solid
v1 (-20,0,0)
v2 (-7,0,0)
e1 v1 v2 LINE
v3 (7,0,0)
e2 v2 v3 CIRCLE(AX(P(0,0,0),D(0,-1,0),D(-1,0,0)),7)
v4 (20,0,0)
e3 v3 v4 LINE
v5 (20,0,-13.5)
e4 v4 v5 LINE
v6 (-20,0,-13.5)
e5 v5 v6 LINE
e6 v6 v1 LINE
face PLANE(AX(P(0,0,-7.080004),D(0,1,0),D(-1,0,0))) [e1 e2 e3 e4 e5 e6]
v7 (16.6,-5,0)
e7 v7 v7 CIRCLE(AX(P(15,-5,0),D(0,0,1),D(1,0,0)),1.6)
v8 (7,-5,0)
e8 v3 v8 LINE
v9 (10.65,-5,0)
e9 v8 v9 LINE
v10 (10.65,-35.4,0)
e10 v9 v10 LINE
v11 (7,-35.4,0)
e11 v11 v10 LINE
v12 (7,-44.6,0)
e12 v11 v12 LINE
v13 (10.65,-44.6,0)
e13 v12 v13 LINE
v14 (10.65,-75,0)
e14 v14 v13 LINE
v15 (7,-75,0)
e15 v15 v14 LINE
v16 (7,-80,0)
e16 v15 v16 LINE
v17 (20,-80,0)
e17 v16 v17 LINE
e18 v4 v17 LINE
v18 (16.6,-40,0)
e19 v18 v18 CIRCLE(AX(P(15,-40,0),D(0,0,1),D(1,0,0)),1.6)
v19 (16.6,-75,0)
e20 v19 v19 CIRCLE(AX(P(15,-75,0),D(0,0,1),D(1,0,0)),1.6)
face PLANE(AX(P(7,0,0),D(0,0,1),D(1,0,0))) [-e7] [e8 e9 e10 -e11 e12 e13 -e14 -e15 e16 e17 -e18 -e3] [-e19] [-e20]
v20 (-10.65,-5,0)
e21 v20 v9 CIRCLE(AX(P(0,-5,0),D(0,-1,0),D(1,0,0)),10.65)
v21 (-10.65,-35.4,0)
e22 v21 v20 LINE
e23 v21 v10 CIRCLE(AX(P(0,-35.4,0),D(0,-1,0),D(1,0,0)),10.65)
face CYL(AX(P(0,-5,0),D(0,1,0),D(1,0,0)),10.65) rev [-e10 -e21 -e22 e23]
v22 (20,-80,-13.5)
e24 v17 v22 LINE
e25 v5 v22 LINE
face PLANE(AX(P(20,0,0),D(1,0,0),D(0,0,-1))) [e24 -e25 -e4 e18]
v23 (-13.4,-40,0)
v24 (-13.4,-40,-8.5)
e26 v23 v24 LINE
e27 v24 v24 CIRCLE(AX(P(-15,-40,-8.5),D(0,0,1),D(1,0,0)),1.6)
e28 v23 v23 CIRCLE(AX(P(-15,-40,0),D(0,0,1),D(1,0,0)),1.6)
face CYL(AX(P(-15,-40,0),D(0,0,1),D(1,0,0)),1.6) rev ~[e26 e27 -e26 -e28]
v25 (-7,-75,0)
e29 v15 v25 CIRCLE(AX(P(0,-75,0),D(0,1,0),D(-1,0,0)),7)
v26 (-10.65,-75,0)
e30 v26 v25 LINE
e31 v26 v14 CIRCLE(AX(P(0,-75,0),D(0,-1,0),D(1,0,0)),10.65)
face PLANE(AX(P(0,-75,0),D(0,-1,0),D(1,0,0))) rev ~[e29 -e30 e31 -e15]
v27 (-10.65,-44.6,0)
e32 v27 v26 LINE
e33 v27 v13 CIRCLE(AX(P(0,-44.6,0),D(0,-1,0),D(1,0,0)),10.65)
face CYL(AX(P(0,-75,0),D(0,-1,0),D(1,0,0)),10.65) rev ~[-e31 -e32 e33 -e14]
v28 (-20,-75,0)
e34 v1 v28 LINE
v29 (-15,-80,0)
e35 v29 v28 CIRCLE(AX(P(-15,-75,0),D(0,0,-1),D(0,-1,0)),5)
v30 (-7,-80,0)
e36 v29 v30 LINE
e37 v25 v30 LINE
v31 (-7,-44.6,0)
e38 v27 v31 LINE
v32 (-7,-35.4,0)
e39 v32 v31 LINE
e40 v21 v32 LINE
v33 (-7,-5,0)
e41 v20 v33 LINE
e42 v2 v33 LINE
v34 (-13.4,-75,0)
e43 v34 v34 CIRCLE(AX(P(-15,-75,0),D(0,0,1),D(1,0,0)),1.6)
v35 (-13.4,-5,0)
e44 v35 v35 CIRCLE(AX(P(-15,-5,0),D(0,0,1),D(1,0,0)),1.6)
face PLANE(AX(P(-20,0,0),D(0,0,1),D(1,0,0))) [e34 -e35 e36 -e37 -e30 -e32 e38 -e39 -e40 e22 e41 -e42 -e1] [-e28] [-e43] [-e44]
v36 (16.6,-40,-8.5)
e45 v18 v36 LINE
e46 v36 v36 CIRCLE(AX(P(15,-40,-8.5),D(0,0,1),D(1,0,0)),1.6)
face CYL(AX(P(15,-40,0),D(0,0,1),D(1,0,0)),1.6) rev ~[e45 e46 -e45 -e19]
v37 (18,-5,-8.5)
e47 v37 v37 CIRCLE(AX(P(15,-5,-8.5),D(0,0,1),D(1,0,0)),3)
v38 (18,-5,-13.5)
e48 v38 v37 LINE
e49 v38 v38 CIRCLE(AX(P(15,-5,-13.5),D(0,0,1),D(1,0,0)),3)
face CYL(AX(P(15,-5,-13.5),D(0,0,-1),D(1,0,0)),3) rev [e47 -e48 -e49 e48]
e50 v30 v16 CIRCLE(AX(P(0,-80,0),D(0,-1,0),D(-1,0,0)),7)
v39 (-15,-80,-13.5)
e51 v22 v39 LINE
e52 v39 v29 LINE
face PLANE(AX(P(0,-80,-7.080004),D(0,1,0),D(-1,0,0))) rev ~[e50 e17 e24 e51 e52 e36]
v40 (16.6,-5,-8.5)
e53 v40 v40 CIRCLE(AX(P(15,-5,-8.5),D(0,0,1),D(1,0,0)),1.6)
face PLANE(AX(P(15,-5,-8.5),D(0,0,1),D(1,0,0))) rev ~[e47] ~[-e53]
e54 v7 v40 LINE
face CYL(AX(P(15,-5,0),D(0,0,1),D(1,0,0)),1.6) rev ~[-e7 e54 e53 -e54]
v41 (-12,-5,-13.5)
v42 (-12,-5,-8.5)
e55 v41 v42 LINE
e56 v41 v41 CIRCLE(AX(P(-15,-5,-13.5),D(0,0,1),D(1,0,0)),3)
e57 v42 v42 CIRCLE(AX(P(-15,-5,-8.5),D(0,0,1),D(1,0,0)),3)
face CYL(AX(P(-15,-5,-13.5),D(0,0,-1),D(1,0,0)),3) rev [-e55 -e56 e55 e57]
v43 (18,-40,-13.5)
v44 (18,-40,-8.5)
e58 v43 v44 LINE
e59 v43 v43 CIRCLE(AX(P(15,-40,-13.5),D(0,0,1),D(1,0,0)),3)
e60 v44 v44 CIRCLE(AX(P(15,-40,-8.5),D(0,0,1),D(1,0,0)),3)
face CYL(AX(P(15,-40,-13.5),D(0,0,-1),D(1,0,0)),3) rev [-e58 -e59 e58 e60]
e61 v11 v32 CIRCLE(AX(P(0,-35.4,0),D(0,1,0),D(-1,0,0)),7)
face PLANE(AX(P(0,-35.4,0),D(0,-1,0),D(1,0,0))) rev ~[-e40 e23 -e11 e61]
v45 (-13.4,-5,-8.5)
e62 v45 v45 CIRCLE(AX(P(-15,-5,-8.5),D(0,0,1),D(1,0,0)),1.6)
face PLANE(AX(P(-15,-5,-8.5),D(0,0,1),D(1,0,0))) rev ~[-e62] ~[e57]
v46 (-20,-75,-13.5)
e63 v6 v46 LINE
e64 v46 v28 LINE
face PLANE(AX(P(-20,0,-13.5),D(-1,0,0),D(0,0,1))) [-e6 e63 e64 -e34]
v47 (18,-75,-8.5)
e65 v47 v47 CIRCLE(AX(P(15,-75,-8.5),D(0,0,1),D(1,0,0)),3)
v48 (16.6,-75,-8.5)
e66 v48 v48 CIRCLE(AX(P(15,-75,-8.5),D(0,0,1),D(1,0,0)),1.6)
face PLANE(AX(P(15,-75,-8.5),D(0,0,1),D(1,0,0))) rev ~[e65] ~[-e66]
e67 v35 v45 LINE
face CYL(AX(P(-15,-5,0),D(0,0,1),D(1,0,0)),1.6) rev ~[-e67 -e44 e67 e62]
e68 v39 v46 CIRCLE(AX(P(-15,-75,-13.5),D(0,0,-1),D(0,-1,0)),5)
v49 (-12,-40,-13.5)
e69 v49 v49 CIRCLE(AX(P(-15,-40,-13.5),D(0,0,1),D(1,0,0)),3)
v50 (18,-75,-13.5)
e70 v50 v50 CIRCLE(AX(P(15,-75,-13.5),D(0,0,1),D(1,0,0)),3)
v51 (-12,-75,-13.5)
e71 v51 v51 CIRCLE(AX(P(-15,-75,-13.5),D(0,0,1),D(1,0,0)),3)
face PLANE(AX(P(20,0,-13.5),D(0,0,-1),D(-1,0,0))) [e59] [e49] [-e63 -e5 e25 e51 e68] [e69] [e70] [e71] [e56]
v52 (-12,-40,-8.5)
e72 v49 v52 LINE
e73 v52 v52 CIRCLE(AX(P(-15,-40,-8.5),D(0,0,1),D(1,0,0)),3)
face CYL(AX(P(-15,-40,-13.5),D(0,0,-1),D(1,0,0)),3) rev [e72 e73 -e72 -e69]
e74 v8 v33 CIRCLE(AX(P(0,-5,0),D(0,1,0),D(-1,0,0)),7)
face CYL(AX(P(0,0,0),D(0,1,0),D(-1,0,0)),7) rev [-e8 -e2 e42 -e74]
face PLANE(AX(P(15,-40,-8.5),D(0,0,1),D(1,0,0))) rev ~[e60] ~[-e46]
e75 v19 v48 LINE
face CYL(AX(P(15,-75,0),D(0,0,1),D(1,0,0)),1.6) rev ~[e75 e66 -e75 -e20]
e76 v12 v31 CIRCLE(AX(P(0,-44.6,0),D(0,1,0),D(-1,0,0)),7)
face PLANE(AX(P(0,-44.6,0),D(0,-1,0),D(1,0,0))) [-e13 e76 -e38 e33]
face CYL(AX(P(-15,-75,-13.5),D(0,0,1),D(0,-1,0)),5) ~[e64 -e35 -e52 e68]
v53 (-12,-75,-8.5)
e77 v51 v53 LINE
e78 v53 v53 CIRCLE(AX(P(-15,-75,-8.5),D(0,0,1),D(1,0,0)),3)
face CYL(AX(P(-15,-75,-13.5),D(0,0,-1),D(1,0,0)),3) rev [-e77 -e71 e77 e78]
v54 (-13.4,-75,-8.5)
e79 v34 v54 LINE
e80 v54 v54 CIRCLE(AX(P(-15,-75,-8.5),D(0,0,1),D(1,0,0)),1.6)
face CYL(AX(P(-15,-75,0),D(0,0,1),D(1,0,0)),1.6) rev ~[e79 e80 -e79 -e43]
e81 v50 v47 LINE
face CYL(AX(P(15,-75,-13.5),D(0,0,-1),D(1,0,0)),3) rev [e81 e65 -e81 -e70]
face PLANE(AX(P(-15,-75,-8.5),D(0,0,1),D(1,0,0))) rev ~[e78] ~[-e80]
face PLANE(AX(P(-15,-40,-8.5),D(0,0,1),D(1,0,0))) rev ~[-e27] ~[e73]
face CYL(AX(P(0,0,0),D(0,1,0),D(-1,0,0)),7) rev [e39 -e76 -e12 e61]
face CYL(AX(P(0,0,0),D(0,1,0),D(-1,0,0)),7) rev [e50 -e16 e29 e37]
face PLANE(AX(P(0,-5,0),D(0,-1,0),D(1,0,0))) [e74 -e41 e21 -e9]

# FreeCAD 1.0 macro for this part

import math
import FreeCAD as App
import Part
import Sketcher
Q = App.Units.Quantity


def edges_at(feature, points):
    """Names of the edges that pass closest to the given points."""
    edges = feature.Shape.Edges
    near = lambda p: min(range(len(edges)), key=lambda i: edges[i].distToShape(Part.Vertex(*p))[0])
    return sorted({f"Edge{near(p) + 1}" for p in points})

doc = App.newDocument("Part")
body = doc.addObject("PartDesign::Body", "Body")

sketch1 = body.newObject("Sketcher::SketchObject", "Sketch")
sketch1.AttachmentSupport = (doc.getObject("XZ_Plane"), [""])
sketch1.MapMode = "FlatFace"
sketch1.addGeometry(Part.LineSegment(App.Vector(20, -13.5, 0), App.Vector(20, 0, 0)), False)
sketch1.addGeometry(Part.LineSegment(App.Vector(20, 0, 0), App.Vector(7, 0, 0)), False)
sketch1.addGeometry(Part.ArcOfCircle(Part.Circle(App.Vector(0, 0, 0), App.Vector(0, 0, 1), 7), math.radians(180), math.radians(360)), False)
sketch1.addGeometry(Part.LineSegment(App.Vector(-7, 0, 0), App.Vector(-20, 0, 0)), False)
sketch1.addGeometry(Part.LineSegment(App.Vector(-20, 0, 0), App.Vector(-20, -13.5, 0)), False)
sketch1.addGeometry(Part.LineSegment(App.Vector(-20, -13.5, 0), App.Vector(20, -13.5, 0)), False)
sketch1.addConstraint(Sketcher.Constraint("Coincident", 0, 2, 1, 1))
sketch1.addConstraint(Sketcher.Constraint("Coincident", 1, 2, 2, 2))
sketch1.addConstraint(Sketcher.Constraint("Coincident", 2, 1, 3, 1))
sketch1.addConstraint(Sketcher.Constraint("Coincident", 3, 2, 4, 1))
sketch1.addConstraint(Sketcher.Constraint("Coincident", 4, 2, 5, 1))
sketch1.addConstraint(Sketcher.Constraint("Coincident", 5, 2, 0, 1))
sketch1.addConstraint(Sketcher.Constraint("Vertical", 0))
sketch1.addConstraint(Sketcher.Constraint("Horizontal", 1))
sketch1.addConstraint(Sketcher.Constraint("Horizontal", 3))
sketch1.addConstraint(Sketcher.Constraint("Vertical", 4))
sketch1.addConstraint(Sketcher.Constraint("Horizontal", 5))
sketch1.addConstraint(Sketcher.Constraint("Coincident", 2, 3, -1, 1))
sketch1.addConstraint(Sketcher.Constraint("Symmetric", 0, 2, 3, 2, -1, 1))
sketch1.addConstraint(Sketcher.Constraint("PointOnObject", 0, 2, -1))
sketch1.addConstraint(Sketcher.Constraint("Radius", 2, Q("7 mm")))
sketch1.addConstraint(Sketcher.Constraint("DistanceX", 1, 2, 1, 1, Q("13 mm")))
sketch1.addConstraint(Sketcher.Constraint("DistanceY", 0, 1, 0, 2, Q("13.5 mm")))
pad1 = body.newObject("PartDesign::Pad", "Pad")
pad1.Profile = sketch1
pad1.Length = 80

sketch2 = body.newObject("Sketcher::SketchObject", "Sketch001")
sketch2.AttachmentSupport = (doc.getObject("XY_Plane"), [""])
sketch2.MapMode = "FlatFace"
sketch2.addGeometry(Part.Circle(App.Vector(-15, -5, 0), App.Vector(0, 0, 1), 1.6), False)
sketch2.addGeometry(Part.Circle(App.Vector(-15, -40, 0), App.Vector(0, 0, 1), 1.6), False)
sketch2.addGeometry(Part.Circle(App.Vector(-15, -75, 0), App.Vector(0, 0, 1), 1.6), False)
sketch2.addGeometry(Part.Circle(App.Vector(15, -5, 0), App.Vector(0, 0, 1), 1.6), False)
sketch2.addGeometry(Part.Circle(App.Vector(15, -40, 0), App.Vector(0, 0, 1), 1.6), False)
sketch2.addGeometry(Part.Circle(App.Vector(15, -75, 0), App.Vector(0, 0, 1), 1.6), False)
sketch2.addConstraint(Sketcher.Constraint("Equal", 0, 1))
sketch2.addConstraint(Sketcher.Constraint("Equal", 1, 2))
sketch2.addConstraint(Sketcher.Constraint("Equal", 2, 3))
sketch2.addConstraint(Sketcher.Constraint("Equal", 3, 4))
sketch2.addConstraint(Sketcher.Constraint("Equal", 4, 5))
sketch2.addConstraint(Sketcher.Constraint("Symmetric", 0, 3, 3, 3, -2))
sketch2.addConstraint(Sketcher.Constraint("Symmetric", 1, 3, 4, 3, -2))
sketch2.addConstraint(Sketcher.Constraint("Symmetric", 2, 3, 5, 3, -2))
sketch2.addConstraint(Sketcher.Constraint("Vertical", 0, 3, 1, 3))
sketch2.addConstraint(Sketcher.Constraint("Vertical", 1, 3, 2, 3))
sketch2.addConstraint(Sketcher.Constraint("Diameter", 0, Q("3.2 mm")))
sketch2.addConstraint(Sketcher.Constraint("DistanceX", 0, 3, -1, 1, Q("15 mm")))
sketch2.addConstraint(Sketcher.Constraint("DistanceY", 0, 3, -1, 1, Q("5 mm")))
sketch2.addConstraint(Sketcher.Constraint("DistanceY", 1, 3, -1, 1, Q("40 mm")))
sketch2.addConstraint(Sketcher.Constraint("DistanceY", 2, 3, -1, 1, Q("75 mm")))
pocket1 = body.newObject("PartDesign::Pocket", "Pocket")
pocket1.Profile = sketch2
pocket1.Type = "ThroughAll"

sketch3 = body.newObject("Sketcher::SketchObject", "Sketch002")
sketch3.AttachmentSupport = (doc.getObject("XY_Plane"), [""])
sketch3.MapMode = "FlatFace"
sketch3.AttachmentOffset = App.Placement(App.Vector(0, 0, -13.5), App.Rotation())
sketch3.addGeometry(Part.Circle(App.Vector(-15, -5, 0), App.Vector(0, 0, 1), 3), False)
sketch3.addGeometry(Part.Circle(App.Vector(-15, -40, 0), App.Vector(0, 0, 1), 3), False)
sketch3.addGeometry(Part.Circle(App.Vector(-15, -75, 0), App.Vector(0, 0, 1), 3), False)
sketch3.addGeometry(Part.Circle(App.Vector(15, -5, 0), App.Vector(0, 0, 1), 3), False)
sketch3.addGeometry(Part.Circle(App.Vector(15, -40, 0), App.Vector(0, 0, 1), 3), False)
sketch3.addGeometry(Part.Circle(App.Vector(15, -75, 0), App.Vector(0, 0, 1), 3), False)
sketch3.addConstraint(Sketcher.Constraint("Equal", 0, 1))
sketch3.addConstraint(Sketcher.Constraint("Equal", 1, 2))
sketch3.addConstraint(Sketcher.Constraint("Equal", 2, 3))
sketch3.addConstraint(Sketcher.Constraint("Equal", 3, 4))
sketch3.addConstraint(Sketcher.Constraint("Equal", 4, 5))
sketch3.addConstraint(Sketcher.Constraint("Symmetric", 0, 3, 3, 3, -2))
sketch3.addConstraint(Sketcher.Constraint("Symmetric", 1, 3, 4, 3, -2))
sketch3.addConstraint(Sketcher.Constraint("Symmetric", 2, 3, 5, 3, -2))
sketch3.addConstraint(Sketcher.Constraint("Vertical", 0, 3, 1, 3))
sketch3.addConstraint(Sketcher.Constraint("Vertical", 1, 3, 2, 3))
sketch3.addConstraint(Sketcher.Constraint("Diameter", 0, Q("6 mm")))
sketch3.addConstraint(Sketcher.Constraint("DistanceX", 0, 3, -1, 1, Q("15 mm")))
sketch3.addConstraint(Sketcher.Constraint("DistanceY", 0, 3, -1, 1, Q("5 mm")))
sketch3.addConstraint(Sketcher.Constraint("DistanceY", 1, 3, -1, 1, Q("40 mm")))
sketch3.addConstraint(Sketcher.Constraint("DistanceY", 2, 3, -1, 1, Q("75 mm")))
pocket2 = body.newObject("PartDesign::Pocket", "Pocket001")
pocket2.Profile = sketch3
pocket2.Length = 5
pocket2.Reversed = True

sketch4 = body.newObject("Sketcher::SketchObject", "Sketch003")
sketch4.AttachmentSupport = (doc.getObject("XZ_Plane"), [""])
sketch4.MapMode = "FlatFace"
sketch4.AttachmentOffset = App.Placement(App.Vector(0, 0, 5), App.Rotation())
sketch4.addGeometry(Part.Circle(App.Vector(0, 0, 0), App.Vector(0, 0, 1), 10.65), False)
sketch4.addConstraint(Sketcher.Constraint("Coincident", 0, 3, -1, 1))
sketch4.addConstraint(Sketcher.Constraint("Diameter", 0, Q("21.3 mm")))
pocket3 = body.newObject("PartDesign::Pocket", "Pocket002")
pocket3.Profile = sketch4
pocket3.Length = 30.4
pocket3.Reversed = True

sketch5 = body.newObject("Sketcher::SketchObject", "Sketch004")
sketch5.AttachmentSupport = (doc.getObject("XZ_Plane"), [""])
sketch5.MapMode = "FlatFace"
sketch5.AttachmentOffset = App.Placement(App.Vector(0, 0, 75), App.Rotation())
sketch5.addGeometry(Part.Circle(App.Vector(0, 0, 0), App.Vector(0, 0, 1), 10.65), False)
sketch5.addConstraint(Sketcher.Constraint("Coincident", 0, 3, -1, 1))
sketch5.addConstraint(Sketcher.Constraint("Diameter", 0, Q("21.3 mm")))
pocket4 = body.newObject("PartDesign::Pocket", "Pocket003")
pocket4.Profile = sketch5
pocket4.Length = 30.4
doc.recompute()

fillet = body.newObject("PartDesign::Fillet", "Fillet")
fillet.Base = (pocket4, edges_at(pocket4, [(-20, -80, -6.75)]))
fillet.Radius = 5

doc.recompute()
